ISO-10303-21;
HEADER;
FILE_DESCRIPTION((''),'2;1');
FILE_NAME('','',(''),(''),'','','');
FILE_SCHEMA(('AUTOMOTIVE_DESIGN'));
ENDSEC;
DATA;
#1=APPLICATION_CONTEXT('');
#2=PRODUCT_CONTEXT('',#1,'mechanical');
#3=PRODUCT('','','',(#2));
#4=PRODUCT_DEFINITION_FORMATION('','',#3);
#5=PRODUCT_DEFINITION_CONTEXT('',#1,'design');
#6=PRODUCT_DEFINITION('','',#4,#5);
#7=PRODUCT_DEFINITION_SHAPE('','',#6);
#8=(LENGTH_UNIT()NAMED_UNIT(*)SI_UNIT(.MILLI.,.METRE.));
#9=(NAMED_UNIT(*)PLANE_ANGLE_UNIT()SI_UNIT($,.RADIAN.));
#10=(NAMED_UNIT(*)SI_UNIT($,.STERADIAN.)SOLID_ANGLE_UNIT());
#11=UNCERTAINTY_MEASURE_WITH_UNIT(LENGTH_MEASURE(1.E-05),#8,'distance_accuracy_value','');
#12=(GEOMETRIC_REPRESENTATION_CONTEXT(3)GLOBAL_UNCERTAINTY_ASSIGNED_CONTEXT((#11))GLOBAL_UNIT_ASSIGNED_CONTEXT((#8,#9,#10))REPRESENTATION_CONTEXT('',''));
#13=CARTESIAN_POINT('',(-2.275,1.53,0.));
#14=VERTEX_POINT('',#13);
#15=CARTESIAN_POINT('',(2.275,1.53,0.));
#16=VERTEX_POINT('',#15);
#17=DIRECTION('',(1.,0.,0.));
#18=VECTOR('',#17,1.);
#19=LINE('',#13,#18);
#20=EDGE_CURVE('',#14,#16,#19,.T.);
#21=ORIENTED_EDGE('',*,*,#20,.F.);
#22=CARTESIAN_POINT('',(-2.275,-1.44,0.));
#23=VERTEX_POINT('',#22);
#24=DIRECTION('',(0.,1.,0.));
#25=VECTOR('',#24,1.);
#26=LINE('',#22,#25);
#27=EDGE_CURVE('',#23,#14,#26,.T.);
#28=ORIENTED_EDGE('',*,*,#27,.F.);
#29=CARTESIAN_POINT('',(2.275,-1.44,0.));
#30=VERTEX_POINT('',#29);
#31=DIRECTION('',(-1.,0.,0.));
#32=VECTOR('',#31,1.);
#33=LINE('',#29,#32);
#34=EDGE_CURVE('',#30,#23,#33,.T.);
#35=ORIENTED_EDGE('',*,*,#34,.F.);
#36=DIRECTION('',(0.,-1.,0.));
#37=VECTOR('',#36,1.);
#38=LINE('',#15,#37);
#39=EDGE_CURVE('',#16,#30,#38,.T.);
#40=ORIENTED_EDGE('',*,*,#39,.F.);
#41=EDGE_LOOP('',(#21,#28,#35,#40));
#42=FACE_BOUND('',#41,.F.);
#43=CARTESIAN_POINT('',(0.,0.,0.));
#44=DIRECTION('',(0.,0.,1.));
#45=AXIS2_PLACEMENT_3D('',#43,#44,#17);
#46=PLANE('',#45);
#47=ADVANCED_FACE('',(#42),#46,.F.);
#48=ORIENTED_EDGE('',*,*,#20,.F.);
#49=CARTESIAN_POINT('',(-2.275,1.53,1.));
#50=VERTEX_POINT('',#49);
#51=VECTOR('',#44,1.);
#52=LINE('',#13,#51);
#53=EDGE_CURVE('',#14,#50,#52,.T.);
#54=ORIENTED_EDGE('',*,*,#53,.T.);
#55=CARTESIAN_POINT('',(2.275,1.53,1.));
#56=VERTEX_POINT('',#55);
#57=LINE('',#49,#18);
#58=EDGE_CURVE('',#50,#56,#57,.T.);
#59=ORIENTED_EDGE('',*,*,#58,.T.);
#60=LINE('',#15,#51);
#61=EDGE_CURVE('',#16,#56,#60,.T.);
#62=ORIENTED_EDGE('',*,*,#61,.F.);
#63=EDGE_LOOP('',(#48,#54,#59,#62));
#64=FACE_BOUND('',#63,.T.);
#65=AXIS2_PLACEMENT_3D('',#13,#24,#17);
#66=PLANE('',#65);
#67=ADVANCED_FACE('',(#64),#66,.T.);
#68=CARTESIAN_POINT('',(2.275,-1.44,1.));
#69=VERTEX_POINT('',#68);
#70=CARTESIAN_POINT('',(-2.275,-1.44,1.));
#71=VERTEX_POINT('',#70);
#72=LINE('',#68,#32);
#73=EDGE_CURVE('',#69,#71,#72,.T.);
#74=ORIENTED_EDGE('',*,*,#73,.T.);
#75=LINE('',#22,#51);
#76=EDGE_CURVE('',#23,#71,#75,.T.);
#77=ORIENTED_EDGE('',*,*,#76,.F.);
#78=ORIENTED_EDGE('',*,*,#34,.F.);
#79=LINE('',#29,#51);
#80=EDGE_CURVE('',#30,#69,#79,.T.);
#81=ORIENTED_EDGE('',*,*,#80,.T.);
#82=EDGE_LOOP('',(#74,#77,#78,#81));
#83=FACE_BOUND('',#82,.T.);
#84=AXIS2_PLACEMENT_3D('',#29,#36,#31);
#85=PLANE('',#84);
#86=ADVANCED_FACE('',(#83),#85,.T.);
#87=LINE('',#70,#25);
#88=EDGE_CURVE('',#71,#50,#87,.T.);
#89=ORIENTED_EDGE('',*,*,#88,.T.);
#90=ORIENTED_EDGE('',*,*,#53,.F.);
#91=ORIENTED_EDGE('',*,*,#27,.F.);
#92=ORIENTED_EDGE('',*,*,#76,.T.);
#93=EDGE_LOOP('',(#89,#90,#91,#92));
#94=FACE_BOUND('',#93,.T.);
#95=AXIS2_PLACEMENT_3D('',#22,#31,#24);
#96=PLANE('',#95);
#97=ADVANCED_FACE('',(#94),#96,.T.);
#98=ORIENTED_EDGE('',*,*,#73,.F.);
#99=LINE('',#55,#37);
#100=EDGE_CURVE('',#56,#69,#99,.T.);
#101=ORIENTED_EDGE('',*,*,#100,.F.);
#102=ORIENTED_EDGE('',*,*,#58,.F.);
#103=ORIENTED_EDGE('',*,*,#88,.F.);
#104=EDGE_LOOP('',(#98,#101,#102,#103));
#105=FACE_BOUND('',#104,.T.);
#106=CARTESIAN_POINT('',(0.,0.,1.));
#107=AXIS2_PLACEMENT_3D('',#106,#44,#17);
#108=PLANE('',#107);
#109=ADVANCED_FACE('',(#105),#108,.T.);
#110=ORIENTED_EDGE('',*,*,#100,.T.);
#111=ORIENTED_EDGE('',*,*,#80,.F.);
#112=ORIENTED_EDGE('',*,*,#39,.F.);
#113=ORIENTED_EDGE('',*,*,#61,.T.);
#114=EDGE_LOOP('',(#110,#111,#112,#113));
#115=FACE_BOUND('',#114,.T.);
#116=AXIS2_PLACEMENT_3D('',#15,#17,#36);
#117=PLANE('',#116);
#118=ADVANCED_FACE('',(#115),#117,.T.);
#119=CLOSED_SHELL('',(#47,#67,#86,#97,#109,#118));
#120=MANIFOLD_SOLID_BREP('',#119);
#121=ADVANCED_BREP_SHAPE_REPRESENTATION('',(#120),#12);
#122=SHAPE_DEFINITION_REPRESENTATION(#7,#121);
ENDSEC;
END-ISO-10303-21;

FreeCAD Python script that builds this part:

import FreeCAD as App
import Part
import Sketcher

V = App.Vector
Q = App.Units.Quantity

doc = App.newDocument("Part")
body = doc.addObject("PartDesign::Body", "Body")

sketch1 = doc.addObject("Sketcher::SketchObject", "Sketch")
body.addObject(sketch1)
sketch1.AttachmentSupport = (doc.XY_Plane, [""])
sketch1.MapMode = "FlatFace"
sketch1.addGeometry([
    Part.LineSegment(V(-2.3, 1.5, 0), V(-2.3, -1.4, 0)),
    Part.LineSegment(V(-2.3, -1.4, 0), V(2.3, -1.4, 0)),
    Part.LineSegment(V(2.3, -1.4, 0), V(2.3, 1.5, 0)),
    Part.LineSegment(V(2.3, 1.5, 0), V(-2.3, 1.5, 0)),
], False)
sketch1.addConstraint([
    Sketcher.Constraint("Coincident", 0, 2, 1, 1),
    Sketcher.Constraint("Coincident", 1, 2, 2, 1),
    Sketcher.Constraint("Coincident", 2, 2, 3, 1),
    Sketcher.Constraint("Coincident", 3, 2, 0, 1),
    Sketcher.Constraint("Vertical", 0),
    Sketcher.Constraint("Horizontal", 1),
    Sketcher.Constraint("Vertical", 2),
    Sketcher.Constraint("Horizontal", 3),
    Sketcher.Constraint("DistanceX", 1, 1, 1, 2, Q("4.55 mm")),
    Sketcher.Constraint("DistanceY", 0, 2, 0, 1, Q("2.97 mm")),
    Sketcher.Constraint("DistanceY", 0, 2, -1, 1, Q("1.44 mm")),
    Sketcher.Constraint("DistanceX", 0, 2, -1, 1, Q("2.275 mm")),
])
pad1 = doc.addObject("PartDesign::Pad", "Pad")
body.addObject(pad1)
pad1.Profile = sketch1
pad1.Length = 1

doc.recompute()
